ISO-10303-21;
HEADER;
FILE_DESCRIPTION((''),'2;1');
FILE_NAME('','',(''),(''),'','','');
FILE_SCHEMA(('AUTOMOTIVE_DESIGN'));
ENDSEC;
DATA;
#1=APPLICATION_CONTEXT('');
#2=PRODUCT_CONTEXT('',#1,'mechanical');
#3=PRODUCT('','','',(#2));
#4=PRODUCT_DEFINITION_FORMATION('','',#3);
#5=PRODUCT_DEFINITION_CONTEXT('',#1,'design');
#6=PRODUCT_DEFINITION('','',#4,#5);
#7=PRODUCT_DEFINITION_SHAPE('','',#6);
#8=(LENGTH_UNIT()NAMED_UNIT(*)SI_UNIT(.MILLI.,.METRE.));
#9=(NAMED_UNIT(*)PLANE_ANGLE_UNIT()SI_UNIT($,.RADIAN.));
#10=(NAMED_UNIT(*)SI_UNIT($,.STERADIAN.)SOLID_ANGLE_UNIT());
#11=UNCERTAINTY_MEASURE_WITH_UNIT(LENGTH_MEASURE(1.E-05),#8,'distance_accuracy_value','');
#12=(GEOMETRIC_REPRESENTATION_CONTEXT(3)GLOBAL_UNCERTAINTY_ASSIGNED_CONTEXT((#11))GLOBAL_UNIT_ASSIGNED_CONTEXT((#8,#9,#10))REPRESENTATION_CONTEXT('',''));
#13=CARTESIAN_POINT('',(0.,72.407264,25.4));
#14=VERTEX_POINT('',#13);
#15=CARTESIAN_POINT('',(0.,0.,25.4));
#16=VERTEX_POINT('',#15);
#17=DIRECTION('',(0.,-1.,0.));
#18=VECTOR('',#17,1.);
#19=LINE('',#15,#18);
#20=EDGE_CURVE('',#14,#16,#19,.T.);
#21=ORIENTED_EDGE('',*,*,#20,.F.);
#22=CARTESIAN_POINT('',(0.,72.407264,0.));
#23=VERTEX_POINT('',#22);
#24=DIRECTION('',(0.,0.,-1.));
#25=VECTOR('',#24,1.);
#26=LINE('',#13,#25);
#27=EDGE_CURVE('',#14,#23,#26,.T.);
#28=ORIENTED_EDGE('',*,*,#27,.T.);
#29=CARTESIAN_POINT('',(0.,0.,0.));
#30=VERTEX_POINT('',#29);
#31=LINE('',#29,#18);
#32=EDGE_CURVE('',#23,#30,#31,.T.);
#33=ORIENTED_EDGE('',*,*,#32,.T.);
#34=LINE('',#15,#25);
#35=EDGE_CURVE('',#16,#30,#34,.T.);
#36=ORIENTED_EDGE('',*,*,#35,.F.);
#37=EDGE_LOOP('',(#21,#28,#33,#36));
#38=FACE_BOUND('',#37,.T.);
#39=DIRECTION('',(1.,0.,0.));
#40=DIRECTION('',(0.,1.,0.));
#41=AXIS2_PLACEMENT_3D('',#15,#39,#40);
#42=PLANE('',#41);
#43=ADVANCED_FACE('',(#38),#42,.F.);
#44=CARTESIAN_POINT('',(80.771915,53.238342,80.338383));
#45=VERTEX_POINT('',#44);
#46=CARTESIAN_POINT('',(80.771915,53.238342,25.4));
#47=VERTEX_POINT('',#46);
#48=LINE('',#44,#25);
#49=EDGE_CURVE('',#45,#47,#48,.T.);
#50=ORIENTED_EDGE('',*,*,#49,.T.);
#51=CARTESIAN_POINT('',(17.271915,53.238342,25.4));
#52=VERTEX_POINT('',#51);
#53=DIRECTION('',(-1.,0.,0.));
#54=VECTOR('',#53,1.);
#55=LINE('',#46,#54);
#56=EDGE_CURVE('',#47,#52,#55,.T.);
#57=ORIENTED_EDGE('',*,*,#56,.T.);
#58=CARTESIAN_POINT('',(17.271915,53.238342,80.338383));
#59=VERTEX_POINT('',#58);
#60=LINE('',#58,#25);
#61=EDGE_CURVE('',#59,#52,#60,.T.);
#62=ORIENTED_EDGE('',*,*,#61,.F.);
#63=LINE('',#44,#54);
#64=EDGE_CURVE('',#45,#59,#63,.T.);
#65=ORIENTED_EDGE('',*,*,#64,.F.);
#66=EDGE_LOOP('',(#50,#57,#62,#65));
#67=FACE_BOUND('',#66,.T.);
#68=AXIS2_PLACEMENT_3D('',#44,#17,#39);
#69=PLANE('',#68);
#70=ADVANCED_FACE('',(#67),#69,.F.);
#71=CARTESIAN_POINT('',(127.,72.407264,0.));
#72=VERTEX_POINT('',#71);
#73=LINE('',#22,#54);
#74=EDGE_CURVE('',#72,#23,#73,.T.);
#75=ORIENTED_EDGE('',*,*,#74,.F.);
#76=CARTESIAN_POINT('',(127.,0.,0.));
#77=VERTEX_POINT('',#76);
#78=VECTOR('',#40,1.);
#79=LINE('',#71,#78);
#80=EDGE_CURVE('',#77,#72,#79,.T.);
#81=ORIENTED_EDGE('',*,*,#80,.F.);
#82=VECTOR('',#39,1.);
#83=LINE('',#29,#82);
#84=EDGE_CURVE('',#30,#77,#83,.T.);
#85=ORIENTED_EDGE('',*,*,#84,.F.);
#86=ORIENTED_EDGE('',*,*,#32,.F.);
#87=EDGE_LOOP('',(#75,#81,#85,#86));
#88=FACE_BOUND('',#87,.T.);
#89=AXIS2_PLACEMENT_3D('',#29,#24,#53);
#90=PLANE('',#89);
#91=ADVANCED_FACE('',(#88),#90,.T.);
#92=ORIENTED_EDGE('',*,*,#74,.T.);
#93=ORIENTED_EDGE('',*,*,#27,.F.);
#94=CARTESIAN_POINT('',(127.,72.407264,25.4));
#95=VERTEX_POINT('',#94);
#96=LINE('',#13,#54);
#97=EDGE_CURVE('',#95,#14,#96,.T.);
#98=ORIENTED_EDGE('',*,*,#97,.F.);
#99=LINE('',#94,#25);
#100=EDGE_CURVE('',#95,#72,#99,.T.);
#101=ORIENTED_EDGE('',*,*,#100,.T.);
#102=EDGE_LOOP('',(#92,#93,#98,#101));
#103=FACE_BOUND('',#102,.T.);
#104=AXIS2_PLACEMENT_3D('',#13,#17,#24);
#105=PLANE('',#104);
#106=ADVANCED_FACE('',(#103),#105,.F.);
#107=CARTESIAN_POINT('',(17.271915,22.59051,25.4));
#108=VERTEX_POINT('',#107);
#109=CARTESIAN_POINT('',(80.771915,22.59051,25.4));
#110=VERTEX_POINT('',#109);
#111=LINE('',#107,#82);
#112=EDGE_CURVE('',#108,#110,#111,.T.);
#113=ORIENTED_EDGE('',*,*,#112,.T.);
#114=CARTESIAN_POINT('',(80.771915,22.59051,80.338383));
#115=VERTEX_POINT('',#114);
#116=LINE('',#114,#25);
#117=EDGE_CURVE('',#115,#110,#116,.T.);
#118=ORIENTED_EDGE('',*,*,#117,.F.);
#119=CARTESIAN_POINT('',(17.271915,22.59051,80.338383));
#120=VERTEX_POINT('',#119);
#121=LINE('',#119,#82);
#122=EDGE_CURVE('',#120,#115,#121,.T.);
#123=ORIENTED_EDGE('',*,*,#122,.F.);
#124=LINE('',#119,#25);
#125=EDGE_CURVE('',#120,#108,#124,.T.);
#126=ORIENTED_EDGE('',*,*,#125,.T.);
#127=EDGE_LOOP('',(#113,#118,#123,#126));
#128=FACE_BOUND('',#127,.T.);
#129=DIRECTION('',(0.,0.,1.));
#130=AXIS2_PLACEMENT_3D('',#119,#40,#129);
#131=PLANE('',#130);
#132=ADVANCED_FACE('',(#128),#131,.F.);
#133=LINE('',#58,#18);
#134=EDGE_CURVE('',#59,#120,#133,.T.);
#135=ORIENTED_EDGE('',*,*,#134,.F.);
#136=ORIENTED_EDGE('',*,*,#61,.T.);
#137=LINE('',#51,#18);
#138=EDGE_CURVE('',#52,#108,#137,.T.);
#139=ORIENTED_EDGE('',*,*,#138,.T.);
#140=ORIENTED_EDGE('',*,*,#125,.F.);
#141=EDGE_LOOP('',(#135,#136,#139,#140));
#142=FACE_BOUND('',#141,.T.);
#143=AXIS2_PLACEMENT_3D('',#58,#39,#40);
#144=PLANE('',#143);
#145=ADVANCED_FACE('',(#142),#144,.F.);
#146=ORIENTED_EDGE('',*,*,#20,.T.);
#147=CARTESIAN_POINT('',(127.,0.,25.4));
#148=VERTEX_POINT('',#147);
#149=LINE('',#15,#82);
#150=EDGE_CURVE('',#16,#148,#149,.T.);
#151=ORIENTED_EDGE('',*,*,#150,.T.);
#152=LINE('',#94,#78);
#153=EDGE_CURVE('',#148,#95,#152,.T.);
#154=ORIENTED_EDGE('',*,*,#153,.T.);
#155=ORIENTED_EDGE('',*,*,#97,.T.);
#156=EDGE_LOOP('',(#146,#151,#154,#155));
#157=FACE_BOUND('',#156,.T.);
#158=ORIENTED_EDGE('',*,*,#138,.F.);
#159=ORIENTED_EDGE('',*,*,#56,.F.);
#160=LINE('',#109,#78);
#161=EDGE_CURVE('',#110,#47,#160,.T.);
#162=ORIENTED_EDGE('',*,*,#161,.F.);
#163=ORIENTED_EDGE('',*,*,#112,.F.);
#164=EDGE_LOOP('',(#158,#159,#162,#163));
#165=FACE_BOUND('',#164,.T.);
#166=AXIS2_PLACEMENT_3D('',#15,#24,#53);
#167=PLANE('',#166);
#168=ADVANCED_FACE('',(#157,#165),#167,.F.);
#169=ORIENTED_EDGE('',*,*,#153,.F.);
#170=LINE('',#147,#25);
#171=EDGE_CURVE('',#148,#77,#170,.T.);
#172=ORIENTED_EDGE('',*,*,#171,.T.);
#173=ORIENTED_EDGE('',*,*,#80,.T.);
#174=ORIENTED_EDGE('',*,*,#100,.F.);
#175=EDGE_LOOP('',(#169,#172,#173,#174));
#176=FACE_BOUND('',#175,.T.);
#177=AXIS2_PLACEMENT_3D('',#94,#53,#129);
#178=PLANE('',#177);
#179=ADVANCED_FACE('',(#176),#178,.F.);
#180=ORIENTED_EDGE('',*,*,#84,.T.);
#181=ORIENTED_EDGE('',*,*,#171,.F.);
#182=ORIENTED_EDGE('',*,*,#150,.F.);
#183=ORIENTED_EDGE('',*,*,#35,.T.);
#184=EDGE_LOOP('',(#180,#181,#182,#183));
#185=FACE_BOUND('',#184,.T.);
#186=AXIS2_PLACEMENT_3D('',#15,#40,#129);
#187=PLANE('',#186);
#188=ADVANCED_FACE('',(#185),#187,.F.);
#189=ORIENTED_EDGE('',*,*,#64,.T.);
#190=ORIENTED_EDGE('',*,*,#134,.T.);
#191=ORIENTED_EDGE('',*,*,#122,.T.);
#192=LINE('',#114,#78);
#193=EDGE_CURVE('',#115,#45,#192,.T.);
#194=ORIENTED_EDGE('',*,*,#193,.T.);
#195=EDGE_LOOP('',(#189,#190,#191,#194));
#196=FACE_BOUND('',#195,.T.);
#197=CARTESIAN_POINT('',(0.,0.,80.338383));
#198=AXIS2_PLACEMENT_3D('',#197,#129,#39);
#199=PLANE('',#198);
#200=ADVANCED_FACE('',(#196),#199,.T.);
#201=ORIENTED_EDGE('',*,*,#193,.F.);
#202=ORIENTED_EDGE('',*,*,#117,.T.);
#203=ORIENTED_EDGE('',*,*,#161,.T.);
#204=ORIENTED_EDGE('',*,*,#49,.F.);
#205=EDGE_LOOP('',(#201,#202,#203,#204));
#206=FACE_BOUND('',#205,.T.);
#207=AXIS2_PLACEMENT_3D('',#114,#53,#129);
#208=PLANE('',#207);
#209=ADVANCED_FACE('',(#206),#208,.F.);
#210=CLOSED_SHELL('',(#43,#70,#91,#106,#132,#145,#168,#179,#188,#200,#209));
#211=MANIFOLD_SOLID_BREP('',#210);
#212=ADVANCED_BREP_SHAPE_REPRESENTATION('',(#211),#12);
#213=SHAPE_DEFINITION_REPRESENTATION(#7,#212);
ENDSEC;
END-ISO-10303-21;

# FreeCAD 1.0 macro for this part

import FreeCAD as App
import Part
import Sketcher
Q = App.Units.Quantity


def add_polygon(sketch, points):
    """Adds a closed chain of lines whose ends are joined by coincident constraints."""
    first, n = sketch.GeometryCount, len(points)
    for a, b in zip(points, points[1:] + points[:1]):
        sketch.addGeometry(Part.LineSegment(App.Vector(*a, 0), App.Vector(*b, 0)), False)
    for i in range(n):
        sketch.addConstraint(Sketcher.Constraint("Coincident", first + i, 2, first + (i + 1) % n, 1))

doc = App.newDocument("Part")
body = doc.addObject("PartDesign::Body", "Body")

# Sketch on XY plane
sketch1 = doc.addObject("Sketcher::SketchObject", "Sketch")
body.addObject(sketch1)
sketch1.AttachmentSupport = (doc.XY_Plane, [""])
sketch1.MapMode = "FlatFace"
add_polygon(sketch1, [(0, 72.407264), (0, 0), (127, 0), (127, 72.407264)])  # lines 0-3
sketch1.addConstraint([
    Sketcher.Constraint("Vertical", 0),
    Sketcher.Constraint("Horizontal", 1),
    Sketcher.Constraint("Vertical", 2),
    Sketcher.Constraint("Horizontal", 3),
    Sketcher.Constraint("Coincident", 0, 2, -1, 1),
    Sketcher.Constraint("DistanceX", 1, 1, 1, 2, Q("5 in")),
    Sketcher.Constraint("DistanceY", 0, 2, 0, 1, 72.407264),
])
pad1 = doc.addObject("PartDesign::Pad", "Pad")
body.addObject(pad1)
pad1.Profile = sketch1
pad1.Length = Q("1 in")

# Sketch on XY plane
sketch2 = doc.addObject("Sketcher::SketchObject", "Sketch001")
body.addObject(sketch2)
sketch2.AttachmentSupport = (doc.XY_Plane, [""])
sketch2.MapMode = "FlatFace"
sketch2.AttachmentOffset = App.Placement(App.Vector(0, 0, 1 * 25.4), App.Rotation())
add_polygon(sketch2, [(17.271915, 53.238342), (17.271915, 22.59051), (80.771915, 22.59051), (80.771915, 53.238342)])  # lines 0-3
sketch2.addConstraint([
    Sketcher.Constraint("Vertical", 0),
    Sketcher.Constraint("Horizontal", 1),
    Sketcher.Constraint("Vertical", 2),
    Sketcher.Constraint("Horizontal", 3),
    Sketcher.Constraint("DistanceX", 1, 1, 1, 2, Q("2.5 in")),
    Sketcher.Constraint("DistanceY", 0, 2, 0, 1, 30.647832),
    Sketcher.Constraint("DistanceY", -1, 1, 0, 2, 22.59051),
    Sketcher.Constraint("DistanceX", -1, 1, 0, 2, 17.271915),
])
pad2 = doc.addObject("PartDesign::Pad", "Pad001")
body.addObject(pad2)
pad2.Profile = sketch2
pad2.Length = 54.938383

doc.recompute()
